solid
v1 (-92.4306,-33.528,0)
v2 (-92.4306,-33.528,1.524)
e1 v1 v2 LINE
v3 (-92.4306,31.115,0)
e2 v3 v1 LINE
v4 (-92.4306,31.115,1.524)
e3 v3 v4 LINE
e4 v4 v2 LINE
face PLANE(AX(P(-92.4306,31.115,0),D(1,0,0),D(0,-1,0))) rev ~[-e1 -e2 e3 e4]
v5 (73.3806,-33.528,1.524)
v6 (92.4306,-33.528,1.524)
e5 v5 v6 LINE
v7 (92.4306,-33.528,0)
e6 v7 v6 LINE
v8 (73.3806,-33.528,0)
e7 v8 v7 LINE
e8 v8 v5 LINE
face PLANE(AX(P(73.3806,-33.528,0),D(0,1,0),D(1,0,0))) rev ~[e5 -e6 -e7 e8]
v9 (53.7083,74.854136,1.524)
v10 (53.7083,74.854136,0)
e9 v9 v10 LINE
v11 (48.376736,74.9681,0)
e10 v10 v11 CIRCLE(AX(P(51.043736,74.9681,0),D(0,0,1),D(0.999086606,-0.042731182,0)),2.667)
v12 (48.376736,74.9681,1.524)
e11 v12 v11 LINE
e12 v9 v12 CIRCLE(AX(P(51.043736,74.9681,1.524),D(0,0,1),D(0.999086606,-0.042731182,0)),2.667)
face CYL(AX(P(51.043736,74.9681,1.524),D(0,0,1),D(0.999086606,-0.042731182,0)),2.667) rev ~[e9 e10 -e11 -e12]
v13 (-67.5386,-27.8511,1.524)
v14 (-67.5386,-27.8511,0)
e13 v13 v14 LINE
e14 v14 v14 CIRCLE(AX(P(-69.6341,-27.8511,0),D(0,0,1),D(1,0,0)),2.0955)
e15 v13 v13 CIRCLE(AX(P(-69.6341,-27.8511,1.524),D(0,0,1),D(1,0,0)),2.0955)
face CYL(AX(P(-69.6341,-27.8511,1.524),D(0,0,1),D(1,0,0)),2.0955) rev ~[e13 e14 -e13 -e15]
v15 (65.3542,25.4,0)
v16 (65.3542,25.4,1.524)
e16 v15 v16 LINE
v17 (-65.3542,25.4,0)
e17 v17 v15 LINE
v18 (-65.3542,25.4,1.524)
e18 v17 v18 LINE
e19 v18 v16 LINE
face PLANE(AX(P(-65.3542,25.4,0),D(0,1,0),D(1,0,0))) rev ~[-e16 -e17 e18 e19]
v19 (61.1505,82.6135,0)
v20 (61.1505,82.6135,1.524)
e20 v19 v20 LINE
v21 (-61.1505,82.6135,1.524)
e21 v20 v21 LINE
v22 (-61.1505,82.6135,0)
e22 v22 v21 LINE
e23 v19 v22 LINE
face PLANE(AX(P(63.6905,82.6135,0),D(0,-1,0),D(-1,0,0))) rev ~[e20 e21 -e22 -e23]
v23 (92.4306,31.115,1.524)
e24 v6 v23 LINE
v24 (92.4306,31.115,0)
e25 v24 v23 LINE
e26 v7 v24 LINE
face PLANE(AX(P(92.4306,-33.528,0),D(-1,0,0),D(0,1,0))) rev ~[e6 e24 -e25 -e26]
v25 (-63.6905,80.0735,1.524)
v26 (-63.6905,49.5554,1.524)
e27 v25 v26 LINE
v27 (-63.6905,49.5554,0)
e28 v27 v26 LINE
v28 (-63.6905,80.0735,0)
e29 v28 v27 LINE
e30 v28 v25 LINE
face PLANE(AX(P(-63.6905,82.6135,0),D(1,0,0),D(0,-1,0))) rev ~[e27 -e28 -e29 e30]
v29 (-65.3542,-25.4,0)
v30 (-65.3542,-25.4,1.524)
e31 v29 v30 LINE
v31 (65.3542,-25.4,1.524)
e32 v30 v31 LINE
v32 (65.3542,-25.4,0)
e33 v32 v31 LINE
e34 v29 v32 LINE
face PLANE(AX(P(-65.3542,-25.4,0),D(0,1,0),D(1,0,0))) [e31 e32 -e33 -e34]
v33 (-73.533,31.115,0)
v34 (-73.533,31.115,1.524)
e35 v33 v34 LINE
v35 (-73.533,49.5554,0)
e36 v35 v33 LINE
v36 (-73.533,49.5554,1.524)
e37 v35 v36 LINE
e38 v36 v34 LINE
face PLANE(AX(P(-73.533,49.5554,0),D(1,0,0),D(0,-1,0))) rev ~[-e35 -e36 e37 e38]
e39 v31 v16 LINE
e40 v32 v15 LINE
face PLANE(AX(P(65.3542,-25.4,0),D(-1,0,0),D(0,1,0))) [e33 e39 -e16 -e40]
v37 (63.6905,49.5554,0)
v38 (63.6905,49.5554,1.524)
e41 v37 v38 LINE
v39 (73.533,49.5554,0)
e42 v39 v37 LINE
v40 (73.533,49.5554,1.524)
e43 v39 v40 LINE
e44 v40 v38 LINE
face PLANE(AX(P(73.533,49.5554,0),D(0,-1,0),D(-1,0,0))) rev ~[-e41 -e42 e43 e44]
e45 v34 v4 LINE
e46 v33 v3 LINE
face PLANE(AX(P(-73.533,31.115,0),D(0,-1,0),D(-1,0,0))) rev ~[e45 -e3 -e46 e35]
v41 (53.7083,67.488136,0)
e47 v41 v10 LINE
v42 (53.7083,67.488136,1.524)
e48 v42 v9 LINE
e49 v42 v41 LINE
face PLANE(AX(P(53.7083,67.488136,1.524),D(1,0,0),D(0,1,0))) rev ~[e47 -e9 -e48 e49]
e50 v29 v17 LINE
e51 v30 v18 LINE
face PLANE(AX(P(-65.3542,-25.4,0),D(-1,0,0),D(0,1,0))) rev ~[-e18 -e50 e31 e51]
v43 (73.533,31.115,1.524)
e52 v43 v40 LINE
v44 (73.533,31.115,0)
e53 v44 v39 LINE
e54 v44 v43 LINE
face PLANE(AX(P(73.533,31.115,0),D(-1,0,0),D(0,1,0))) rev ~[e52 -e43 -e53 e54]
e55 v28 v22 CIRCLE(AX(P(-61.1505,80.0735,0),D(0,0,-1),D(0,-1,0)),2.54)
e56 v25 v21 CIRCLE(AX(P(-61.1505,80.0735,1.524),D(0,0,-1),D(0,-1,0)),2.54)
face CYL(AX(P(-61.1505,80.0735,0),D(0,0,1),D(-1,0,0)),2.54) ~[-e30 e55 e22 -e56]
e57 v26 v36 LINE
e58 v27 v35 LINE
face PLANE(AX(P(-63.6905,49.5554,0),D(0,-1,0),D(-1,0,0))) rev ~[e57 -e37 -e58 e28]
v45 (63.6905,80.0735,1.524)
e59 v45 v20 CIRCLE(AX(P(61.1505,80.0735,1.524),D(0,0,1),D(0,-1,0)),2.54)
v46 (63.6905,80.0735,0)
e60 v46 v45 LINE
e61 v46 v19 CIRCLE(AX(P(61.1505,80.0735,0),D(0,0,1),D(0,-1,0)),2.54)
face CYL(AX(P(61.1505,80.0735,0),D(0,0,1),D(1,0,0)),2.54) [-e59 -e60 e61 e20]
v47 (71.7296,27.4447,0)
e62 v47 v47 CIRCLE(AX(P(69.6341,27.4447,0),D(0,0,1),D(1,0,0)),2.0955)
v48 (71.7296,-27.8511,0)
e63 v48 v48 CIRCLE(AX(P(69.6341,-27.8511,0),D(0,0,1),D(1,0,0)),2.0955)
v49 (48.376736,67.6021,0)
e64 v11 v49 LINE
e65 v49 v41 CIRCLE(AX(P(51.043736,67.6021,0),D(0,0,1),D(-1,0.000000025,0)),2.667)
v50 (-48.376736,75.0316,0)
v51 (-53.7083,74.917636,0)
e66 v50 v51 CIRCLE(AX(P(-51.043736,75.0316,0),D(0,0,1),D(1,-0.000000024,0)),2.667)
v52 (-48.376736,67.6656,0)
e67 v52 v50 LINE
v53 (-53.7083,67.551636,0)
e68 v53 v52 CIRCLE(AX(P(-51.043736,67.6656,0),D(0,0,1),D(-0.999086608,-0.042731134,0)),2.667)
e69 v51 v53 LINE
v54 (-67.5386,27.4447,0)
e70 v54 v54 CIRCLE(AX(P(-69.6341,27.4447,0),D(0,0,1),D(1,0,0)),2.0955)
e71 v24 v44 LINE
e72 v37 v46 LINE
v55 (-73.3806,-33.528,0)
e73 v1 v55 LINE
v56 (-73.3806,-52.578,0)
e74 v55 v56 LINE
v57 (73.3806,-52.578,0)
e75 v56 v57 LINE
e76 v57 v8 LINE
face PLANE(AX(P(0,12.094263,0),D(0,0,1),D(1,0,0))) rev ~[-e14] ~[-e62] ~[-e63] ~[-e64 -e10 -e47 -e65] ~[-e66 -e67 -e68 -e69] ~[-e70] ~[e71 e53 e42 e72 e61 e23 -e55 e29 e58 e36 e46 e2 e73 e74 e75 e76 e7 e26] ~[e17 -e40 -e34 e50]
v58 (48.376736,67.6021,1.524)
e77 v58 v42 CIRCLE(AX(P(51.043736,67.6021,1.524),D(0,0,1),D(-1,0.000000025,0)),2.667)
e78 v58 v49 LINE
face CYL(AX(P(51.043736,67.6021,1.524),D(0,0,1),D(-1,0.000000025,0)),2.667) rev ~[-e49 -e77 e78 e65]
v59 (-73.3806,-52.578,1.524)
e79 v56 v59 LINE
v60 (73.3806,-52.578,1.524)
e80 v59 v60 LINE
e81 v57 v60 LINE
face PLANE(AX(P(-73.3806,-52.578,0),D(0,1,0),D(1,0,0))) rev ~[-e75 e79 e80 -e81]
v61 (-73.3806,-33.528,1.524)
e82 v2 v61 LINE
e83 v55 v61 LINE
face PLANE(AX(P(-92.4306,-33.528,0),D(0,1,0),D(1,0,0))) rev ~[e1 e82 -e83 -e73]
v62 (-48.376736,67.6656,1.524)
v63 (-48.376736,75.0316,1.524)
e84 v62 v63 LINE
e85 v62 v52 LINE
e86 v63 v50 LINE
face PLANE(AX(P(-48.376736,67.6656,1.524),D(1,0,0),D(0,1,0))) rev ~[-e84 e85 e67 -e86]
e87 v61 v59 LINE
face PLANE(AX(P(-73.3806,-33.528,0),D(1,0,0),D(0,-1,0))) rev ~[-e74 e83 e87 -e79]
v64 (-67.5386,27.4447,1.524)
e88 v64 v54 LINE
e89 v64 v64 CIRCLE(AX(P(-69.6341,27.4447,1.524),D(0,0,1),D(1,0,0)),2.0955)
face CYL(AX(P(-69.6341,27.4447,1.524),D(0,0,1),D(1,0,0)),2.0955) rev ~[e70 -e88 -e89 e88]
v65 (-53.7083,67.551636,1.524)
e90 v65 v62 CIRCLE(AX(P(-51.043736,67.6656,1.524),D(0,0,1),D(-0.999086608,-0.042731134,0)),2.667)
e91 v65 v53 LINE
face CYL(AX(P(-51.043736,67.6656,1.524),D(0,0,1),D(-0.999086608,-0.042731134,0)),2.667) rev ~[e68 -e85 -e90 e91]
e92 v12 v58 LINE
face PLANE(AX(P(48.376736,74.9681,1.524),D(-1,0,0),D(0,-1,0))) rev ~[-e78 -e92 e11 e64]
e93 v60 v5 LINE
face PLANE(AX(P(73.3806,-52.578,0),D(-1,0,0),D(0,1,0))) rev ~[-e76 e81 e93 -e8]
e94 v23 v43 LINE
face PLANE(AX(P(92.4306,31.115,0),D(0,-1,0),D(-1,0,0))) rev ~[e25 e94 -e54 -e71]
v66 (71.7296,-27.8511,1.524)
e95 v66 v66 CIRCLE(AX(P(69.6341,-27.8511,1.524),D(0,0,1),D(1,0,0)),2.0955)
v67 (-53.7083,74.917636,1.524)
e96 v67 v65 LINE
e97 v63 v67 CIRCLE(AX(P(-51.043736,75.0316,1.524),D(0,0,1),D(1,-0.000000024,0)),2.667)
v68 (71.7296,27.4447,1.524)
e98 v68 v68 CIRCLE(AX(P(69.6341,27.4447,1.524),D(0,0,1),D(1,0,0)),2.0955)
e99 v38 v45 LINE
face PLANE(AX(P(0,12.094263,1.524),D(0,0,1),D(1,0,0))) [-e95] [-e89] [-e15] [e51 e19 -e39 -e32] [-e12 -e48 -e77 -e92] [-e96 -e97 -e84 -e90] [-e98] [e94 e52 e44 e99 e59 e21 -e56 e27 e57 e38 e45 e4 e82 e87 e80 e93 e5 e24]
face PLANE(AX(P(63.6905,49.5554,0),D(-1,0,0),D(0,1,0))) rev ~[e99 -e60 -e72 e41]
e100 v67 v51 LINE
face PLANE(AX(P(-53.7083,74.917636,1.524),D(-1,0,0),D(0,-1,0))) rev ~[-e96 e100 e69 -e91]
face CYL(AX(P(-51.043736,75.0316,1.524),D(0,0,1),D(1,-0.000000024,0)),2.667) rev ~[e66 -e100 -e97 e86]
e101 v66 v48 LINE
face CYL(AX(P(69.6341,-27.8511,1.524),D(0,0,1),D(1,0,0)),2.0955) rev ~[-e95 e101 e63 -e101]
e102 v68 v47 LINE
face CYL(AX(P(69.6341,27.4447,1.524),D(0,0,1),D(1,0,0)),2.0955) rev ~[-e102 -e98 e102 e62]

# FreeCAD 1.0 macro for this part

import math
import FreeCAD as App
import Part
import Sketcher

V = App.Vector
Q = App.Units.Quantity


def edges_at(feature, points):
    """Names of the edges that pass closest to the given points."""
    edges = feature.Shape.Edges
    near = lambda p: min(range(len(edges)), key=lambda i: edges[i].distToShape(Part.Vertex(*p))[0])
    return sorted({f"Edge{near(p) + 1}" for p in points})

doc = App.newDocument("Part")
body = doc.addObject("PartDesign::Body", "Body")

# Sketch on XY plane
sketch1 = body.newObject("Sketcher::SketchObject", "Sketch")
sketch1.AttachmentSupport = (doc.getObject("XY_Plane"), [""])
sketch1.MapMode = "FlatFace"
sketch1.addGeometry(Part.LineSegment(V(-73, -53, 0), V(73, -53, 0)), False)
sketch1.addGeometry(Part.LineSegment(V(73, -53, 0), V(73, -34, 0)), False)
sketch1.addGeometry(Part.LineSegment(V(73, -34, 0), V(92, -34, 0)), False)
sketch1.addGeometry(Part.LineSegment(V(92, -34, 0), V(92, 31, 0)), False)
sketch1.addGeometry(Part.LineSegment(V(92, 31, 0), V(74, 31, 0)), False)
sketch1.addGeometry(Part.LineSegment(V(74, 31, 0), V(74, 50, 0)), False)
sketch1.addGeometry(Part.LineSegment(V(74, 50, 0), V(64, 50, 0)), False)
sketch1.addGeometry(Part.LineSegment(V(64, 50, 0), V(64, 83, 0)), False)
sketch1.addGeometry(Part.LineSegment(V(64, 83, 0), V(-64, 83, 0)), False)
sketch1.addGeometry(Part.LineSegment(V(-64, 83, 0), V(-64, 50, 0)), False)
sketch1.addGeometry(Part.LineSegment(V(-64, 50, 0), V(-74, 50, 0)), False)
sketch1.addGeometry(Part.LineSegment(V(-74, 50, 0), V(-74, 31, 0)), False)
sketch1.addGeometry(Part.LineSegment(V(-74, 31, 0), V(-92, 31, 0)), False)
sketch1.addGeometry(Part.LineSegment(V(-92, 31, 0), V(-92, -34, 0)), False)
sketch1.addGeometry(Part.LineSegment(V(-92, -34, 0), V(-73, -34, 0)), False)
sketch1.addGeometry(Part.LineSegment(V(-73, -34, 0), V(-73, -53, 0)), False)
sketch1.addGeometry(Part.LineSegment(V(65, -25, 0), V(-65, -25, 0)), False)
sketch1.addGeometry(Part.LineSegment(V(-65, -25, 0), V(-65, 25, 0)), False)
sketch1.addGeometry(Part.LineSegment(V(-65, 25, 0), V(65, 25, 0)), False)
sketch1.addGeometry(Part.LineSegment(V(65, 25, 0), V(65, -25, 0)), False)
sketch1.addConstraint(Sketcher.Constraint("Coincident", 0, 2, 1, 1))
sketch1.addConstraint(Sketcher.Constraint("Coincident", 1, 2, 2, 1))
sketch1.addConstraint(Sketcher.Constraint("Coincident", 2, 2, 3, 1))
sketch1.addConstraint(Sketcher.Constraint("Coincident", 3, 2, 4, 1))
sketch1.addConstraint(Sketcher.Constraint("Coincident", 4, 2, 5, 1))
sketch1.addConstraint(Sketcher.Constraint("Coincident", 5, 2, 6, 1))
sketch1.addConstraint(Sketcher.Constraint("Coincident", 6, 2, 7, 1))
sketch1.addConstraint(Sketcher.Constraint("Coincident", 7, 2, 8, 1))
sketch1.addConstraint(Sketcher.Constraint("Coincident", 8, 2, 9, 1))
sketch1.addConstraint(Sketcher.Constraint("Coincident", 9, 2, 10, 1))
sketch1.addConstraint(Sketcher.Constraint("Coincident", 10, 2, 11, 1))
sketch1.addConstraint(Sketcher.Constraint("Coincident", 11, 2, 12, 1))
sketch1.addConstraint(Sketcher.Constraint("Coincident", 12, 2, 13, 1))
sketch1.addConstraint(Sketcher.Constraint("Coincident", 13, 2, 14, 1))
sketch1.addConstraint(Sketcher.Constraint("Coincident", 14, 2, 15, 1))
sketch1.addConstraint(Sketcher.Constraint("Coincident", 15, 2, 0, 1))
sketch1.addConstraint(Sketcher.Constraint("Coincident", 16, 2, 17, 1))
sketch1.addConstraint(Sketcher.Constraint("Coincident", 17, 2, 18, 1))
sketch1.addConstraint(Sketcher.Constraint("Coincident", 18, 2, 19, 1))
sketch1.addConstraint(Sketcher.Constraint("Coincident", 19, 2, 16, 1))
sketch1.addConstraint(Sketcher.Constraint("Horizontal", 0))
sketch1.addConstraint(Sketcher.Constraint("Vertical", 1))
sketch1.addConstraint(Sketcher.Constraint("Horizontal", 2))
sketch1.addConstraint(Sketcher.Constraint("Vertical", 3))
sketch1.addConstraint(Sketcher.Constraint("Horizontal", 4))
sketch1.addConstraint(Sketcher.Constraint("Vertical", 5))
sketch1.addConstraint(Sketcher.Constraint("Horizontal", 6))
sketch1.addConstraint(Sketcher.Constraint("Vertical", 7))
sketch1.addConstraint(Sketcher.Constraint("Horizontal", 8))
sketch1.addConstraint(Sketcher.Constraint("Vertical", 9))
sketch1.addConstraint(Sketcher.Constraint("Horizontal", 10))
sketch1.addConstraint(Sketcher.Constraint("Vertical", 11))
sketch1.addConstraint(Sketcher.Constraint("Horizontal", 12))
sketch1.addConstraint(Sketcher.Constraint("Vertical", 13))
sketch1.addConstraint(Sketcher.Constraint("Horizontal", 14))
sketch1.addConstraint(Sketcher.Constraint("Vertical", 15))
sketch1.addConstraint(Sketcher.Constraint("Horizontal", 16))
sketch1.addConstraint(Sketcher.Constraint("Vertical", 17))
sketch1.addConstraint(Sketcher.Constraint("Horizontal", 18))
sketch1.addConstraint(Sketcher.Constraint("Vertical", 19))
sketch1.addConstraint(Sketcher.Constraint("Symmetric", 16, 2, 18, 2, -1, 1))
sketch1.addConstraint(Sketcher.Constraint("Symmetric", 6, 2, 9, 2, -2))
sketch1.addConstraint(Sketcher.Constraint("Symmetric", 4, 2, 11, 2, -2))
sketch1.addConstraint(Sketcher.Constraint("Symmetric", 2, 2, 13, 2, -2))
sketch1.addConstraint(Sketcher.Constraint("Equal", 2, 14))
sketch1.addConstraint(Sketcher.Constraint("Equal", 14, 1))
sketch1.addConstraint(Sketcher.Constraint("DistanceY", 17, 1, 17, 2, Q("2 in")))
sketch1.addConstraint(Sketcher.Constraint("DistanceX", 2, 1, 2, 2, Q("0.75 in")))
sketch1.addConstraint(Sketcher.Constraint("DistanceX", 0, 1, 0, 2, Q("5.778 in")))
sketch1.addConstraint(Sketcher.Constraint("DistanceX", 4, 2, 4, 1, Q("0.744 in")))
sketch1.addConstraint(Sketcher.Constraint("DistanceX", 8, 2, 8, 1, Q("5.015 in")))
sketch1.addConstraint(Sketcher.Constraint("DistanceX", 16, 2, 16, 1, Q("5.146 in")))
sketch1.addConstraint(Sketcher.Constraint("DistanceY", 3, 1, 3, 2, Q("2.545 in")))
sketch1.addConstraint(Sketcher.Constraint("DistanceY", 5, 1, 5, 2, Q("0.726 in")))
sketch1.addConstraint(Sketcher.Constraint("DistanceY", 0, 2, -1, 1, Q("2.07 in")))
sketch1.addConstraint(Sketcher.Constraint("DistanceY", 7, 1, 7, 2, Q("1.3015 in")))
pad1 = body.newObject("PartDesign::Pad", "Pad")
pad1.Profile = sketch1
pad1.Length = Q("0.06 in")

# Sketch on XY plane
sketch2 = body.newObject("Sketcher::SketchObject", "Sketch001")
sketch2.AttachmentSupport = (doc.getObject("XY_Plane"), [""])
sketch2.MapMode = "FlatFace"
sketch2.AttachmentOffset = App.Placement(V(0, 0, 0.06 * 25.4), App.Rotation())
sketch2.addGeometry(Part.Circle(V(69.6, -27.9, 0), V(0, 0, 1), 2.1), False)
sketch2.addGeometry(Part.Circle(V(69.6, 27.4, 0), V(0, 0, 1), 2.1), False)
sketch2.addGeometry(Part.Circle(V(-69.6, 27.4, 0), V(0, 0, 1), 2.1), False)
sketch2.addGeometry(Part.Circle(V(-69.6, -27.9, 0), V(0, 0, 1), 2.1), False)
sketch2.addConstraint(Sketcher.Constraint("Equal", 0, 1))
sketch2.addConstraint(Sketcher.Constraint("Equal", 1, 2))
sketch2.addConstraint(Sketcher.Constraint("Equal", 2, 3))
sketch2.addConstraint(Sketcher.Constraint("Symmetric", 1, 3, 2, 3, -2))
sketch2.addConstraint(Sketcher.Constraint("Symmetric", 0, 3, 3, 3, -2))
sketch2.addConstraint(Sketcher.Constraint("Vertical", 0, 3, 1, 3))
sketch2.addConstraint(Sketcher.Constraint("Diameter", 0, Q("0.165 in")))
sketch2.addConstraint(Sketcher.Constraint("DistanceY", 0, 3, 1, 3, Q("2.177 in")))
sketch2.addConstraint(Sketcher.Constraint("DistanceX", 2, 3, 1, 3, Q("5.483 in")))
sketch2.addConstraint(Sketcher.Constraint("DistanceY", 0, 3, -1, 1, Q("1.0965 in")))
pocket1 = body.newObject("PartDesign::Pocket", "Pocket")
pocket1.Profile = sketch2
pocket1.Length = Q("1 in")
doc.recompute()

fillet = body.newObject("PartDesign::Fillet", "Fillet")
fillet.Base = (pocket1, edges_at(pocket1, [(63.691, 82.614, 0.762), (-63.691, 82.614, 0.762)]))
fillet.Radius = Q("0.1 in")

# Sketch on XY plane
sketch3 = body.newObject("Sketcher::SketchObject", "Sketch002")
sketch3.AttachmentSupport = (doc.getObject("XY_Plane"), [""])
sketch3.MapMode = "FlatFace"
sketch3.AttachmentOffset = App.Placement(V(0, 0, 0.06 * 25.4), App.Rotation())
sketch3.addGeometry(Part.LineSegment(V(53.7, 67.5, 0), V(53.7, 74.9, 0)), False)
sketch3.addGeometry(Part.ArcOfCircle(Part.Circle(V(51, 75, 0), V(0, 0, 1), 2.7), math.radians(-2), math.radians(180)), False)
sketch3.addGeometry(Part.LineSegment(V(48.4, 75, 0), V(48.4, 67.6, 0)), False)
sketch3.addGeometry(Part.ArcOfCircle(Part.Circle(V(51, 67.6, 0), V(0, 0, 1), 2.7), math.radians(180), math.radians(358)), False)
sketch3.addGeometry(Part.ArcOfCircle(Part.Circle(V(-51, 67.7, 0), V(0, 0, 1), 2.7), math.radians(-178), math.radians(0)), False)
sketch3.addGeometry(Part.LineSegment(V(-48.4, 67.7, 0), V(-48.4, 75, 0)), False)
sketch3.addGeometry(Part.ArcOfCircle(Part.Circle(V(-51, 75, 0), V(0, 0, 1), 2.7), math.radians(0), math.radians(182)), False)
sketch3.addGeometry(Part.LineSegment(V(-53.7, 74.9, 0), V(-53.7, 67.6, 0)), False)
sketch3.addConstraint(Sketcher.Constraint("Coincident", 0, 2, 1, 1))
sketch3.addConstraint(Sketcher.Constraint("Tangent", 1, 2, 2, 1))
sketch3.addConstraint(Sketcher.Constraint("Tangent", 2, 2, 3, 1))
sketch3.addConstraint(Sketcher.Constraint("Coincident", 3, 2, 0, 1))
sketch3.addConstraint(Sketcher.Constraint("Tangent", 4, 2, 5, 1))
sketch3.addConstraint(Sketcher.Constraint("Tangent", 5, 2, 6, 1))
sketch3.addConstraint(Sketcher.Constraint("Coincident", 6, 2, 7, 1))
sketch3.addConstraint(Sketcher.Constraint("Coincident", 7, 2, 4, 1))
sketch3.addConstraint(Sketcher.Constraint("Vertical", 0))
sketch3.addConstraint(Sketcher.Constraint("Vertical", 2))
sketch3.addConstraint(Sketcher.Constraint("Vertical", 5))
sketch3.addConstraint(Sketcher.Constraint("Vertical", 7))
sketch3.addConstraint(Sketcher.Constraint("Equal", 1, 3))
sketch3.addConstraint(Sketcher.Constraint("Equal", 3, 4))
sketch3.addConstraint(Sketcher.Constraint("Equal", 4, 6))
sketch3.addConstraint(Sketcher.Constraint("Equal", 2, 5))
sketch3.addConstraint(Sketcher.Constraint("Radius", 1, Q("0.105 in")))
sketch3.addConstraint(Sketcher.Constraint("DistanceY", 0, 1, 0, 2, Q("0.29 in")))
sketch3.addConstraint(Sketcher.Constraint("DistanceY", -1, 1, 4, 3, Q("2.664 in")))
sketch3.addConstraint(Sketcher.Constraint("DistanceY", -1, 1, 1, 3, Q("2.9515 in")))
sketch3.addConstraint(Sketcher.Constraint("DistanceX", -1, 1, 0, 2, Q("2.1145 in")))
sketch3.addConstraint(Sketcher.Constraint("DistanceX", 6, 2, -1, 1, Q("2.1145 in")))
sketch3.addConstraint(Sketcher.Constraint("DistanceX", -1, 1, 1, 3, 51.043736))
sketch3.addConstraint(Sketcher.Constraint("DistanceX", 4, 3, -1, 1, 51.043736))
pocket2 = body.newObject("PartDesign::Pocket", "Pocket001")
pocket2.Profile = sketch3
pocket2.Length = Q("1 in")

doc.recompute()
